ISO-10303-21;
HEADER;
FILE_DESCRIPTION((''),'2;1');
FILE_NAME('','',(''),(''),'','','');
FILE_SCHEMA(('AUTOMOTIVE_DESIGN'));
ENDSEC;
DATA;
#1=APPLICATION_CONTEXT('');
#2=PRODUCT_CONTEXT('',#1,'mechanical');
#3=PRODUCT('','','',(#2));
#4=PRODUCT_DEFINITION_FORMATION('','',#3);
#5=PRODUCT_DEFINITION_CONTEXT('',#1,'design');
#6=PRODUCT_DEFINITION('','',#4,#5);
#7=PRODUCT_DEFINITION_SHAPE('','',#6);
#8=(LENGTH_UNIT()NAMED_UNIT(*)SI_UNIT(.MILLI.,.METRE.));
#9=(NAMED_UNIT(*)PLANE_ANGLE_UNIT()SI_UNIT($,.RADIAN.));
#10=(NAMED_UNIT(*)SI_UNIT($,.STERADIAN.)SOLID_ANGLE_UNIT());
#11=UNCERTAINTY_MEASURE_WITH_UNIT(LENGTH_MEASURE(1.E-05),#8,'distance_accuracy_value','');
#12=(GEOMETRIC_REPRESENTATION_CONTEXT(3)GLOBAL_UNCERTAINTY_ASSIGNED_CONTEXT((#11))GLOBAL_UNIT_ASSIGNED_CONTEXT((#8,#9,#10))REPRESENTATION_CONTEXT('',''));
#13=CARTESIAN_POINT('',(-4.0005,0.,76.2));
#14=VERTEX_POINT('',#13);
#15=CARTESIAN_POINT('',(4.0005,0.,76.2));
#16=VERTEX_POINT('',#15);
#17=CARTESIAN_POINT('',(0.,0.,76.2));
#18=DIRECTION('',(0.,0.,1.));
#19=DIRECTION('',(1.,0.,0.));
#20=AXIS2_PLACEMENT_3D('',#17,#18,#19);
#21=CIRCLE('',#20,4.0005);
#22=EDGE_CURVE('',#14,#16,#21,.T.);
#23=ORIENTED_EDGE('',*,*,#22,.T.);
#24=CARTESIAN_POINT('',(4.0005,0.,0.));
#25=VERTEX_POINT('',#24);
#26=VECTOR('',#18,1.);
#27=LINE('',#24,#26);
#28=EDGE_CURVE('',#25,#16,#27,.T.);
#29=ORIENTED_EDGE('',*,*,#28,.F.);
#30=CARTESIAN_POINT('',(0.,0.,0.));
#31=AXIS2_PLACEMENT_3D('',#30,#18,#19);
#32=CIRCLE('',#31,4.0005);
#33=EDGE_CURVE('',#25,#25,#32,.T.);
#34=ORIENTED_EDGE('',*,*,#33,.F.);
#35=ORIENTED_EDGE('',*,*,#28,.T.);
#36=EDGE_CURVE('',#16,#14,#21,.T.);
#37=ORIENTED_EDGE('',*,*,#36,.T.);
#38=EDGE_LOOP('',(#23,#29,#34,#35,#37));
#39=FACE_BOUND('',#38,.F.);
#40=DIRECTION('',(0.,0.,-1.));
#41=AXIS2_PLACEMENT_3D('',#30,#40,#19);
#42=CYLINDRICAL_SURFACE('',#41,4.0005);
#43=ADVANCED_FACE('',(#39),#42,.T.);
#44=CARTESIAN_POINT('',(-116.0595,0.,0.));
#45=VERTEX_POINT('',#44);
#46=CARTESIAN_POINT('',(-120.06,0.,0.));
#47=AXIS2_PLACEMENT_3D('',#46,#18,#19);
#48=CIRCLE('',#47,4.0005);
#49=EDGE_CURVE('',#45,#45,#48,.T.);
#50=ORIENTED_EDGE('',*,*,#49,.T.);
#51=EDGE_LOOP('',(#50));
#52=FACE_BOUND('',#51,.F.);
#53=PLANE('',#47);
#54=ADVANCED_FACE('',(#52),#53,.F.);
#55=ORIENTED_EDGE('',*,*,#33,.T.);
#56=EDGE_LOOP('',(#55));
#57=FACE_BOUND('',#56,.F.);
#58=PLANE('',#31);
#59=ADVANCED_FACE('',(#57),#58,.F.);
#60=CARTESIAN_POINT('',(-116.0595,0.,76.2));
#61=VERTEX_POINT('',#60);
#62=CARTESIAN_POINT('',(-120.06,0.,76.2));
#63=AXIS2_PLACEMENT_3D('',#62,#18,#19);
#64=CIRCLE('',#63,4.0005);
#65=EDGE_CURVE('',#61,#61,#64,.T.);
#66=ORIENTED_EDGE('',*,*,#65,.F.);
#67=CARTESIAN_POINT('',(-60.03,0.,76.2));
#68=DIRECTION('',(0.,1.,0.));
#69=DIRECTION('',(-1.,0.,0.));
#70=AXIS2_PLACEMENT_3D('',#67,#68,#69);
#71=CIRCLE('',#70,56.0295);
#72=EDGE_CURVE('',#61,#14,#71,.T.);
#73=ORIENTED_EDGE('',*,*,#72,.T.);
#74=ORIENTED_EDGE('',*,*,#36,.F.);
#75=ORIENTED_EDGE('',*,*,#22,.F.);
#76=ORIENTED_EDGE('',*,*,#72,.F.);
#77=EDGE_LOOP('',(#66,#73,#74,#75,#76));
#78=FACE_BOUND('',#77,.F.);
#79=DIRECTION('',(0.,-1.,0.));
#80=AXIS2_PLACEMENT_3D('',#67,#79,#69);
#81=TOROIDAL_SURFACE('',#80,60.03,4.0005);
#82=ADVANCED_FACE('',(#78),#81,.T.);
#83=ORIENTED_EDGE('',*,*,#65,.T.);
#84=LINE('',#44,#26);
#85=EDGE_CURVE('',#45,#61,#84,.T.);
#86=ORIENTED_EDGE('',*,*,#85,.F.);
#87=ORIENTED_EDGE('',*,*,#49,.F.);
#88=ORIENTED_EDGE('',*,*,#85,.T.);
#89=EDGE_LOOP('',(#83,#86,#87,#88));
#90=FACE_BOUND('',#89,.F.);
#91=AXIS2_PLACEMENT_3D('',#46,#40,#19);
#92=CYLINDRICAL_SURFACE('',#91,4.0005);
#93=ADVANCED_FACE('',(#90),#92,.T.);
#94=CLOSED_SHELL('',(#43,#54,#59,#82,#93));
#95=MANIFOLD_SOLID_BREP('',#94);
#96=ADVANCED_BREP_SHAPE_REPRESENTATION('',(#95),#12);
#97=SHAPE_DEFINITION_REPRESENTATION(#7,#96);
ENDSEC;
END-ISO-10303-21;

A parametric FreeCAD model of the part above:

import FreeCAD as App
import Part
import Sketcher

V = App.Vector
Q = App.Units.Quantity

doc = App.newDocument("Part")
body = doc.addObject("PartDesign::Body", "Body")

sketch1 = doc.addObject("Sketcher::SketchObject", "Sketch")
body.addObject(sketch1)
sketch1.AttachmentSupport = (doc.XY_Plane, [""])
sketch1.MapMode = "FlatFace"
sketch1.addGeometry(Part.Circle(V(0, 0, 0), V(0, 0, 1), 4.0005), False)
sketch1.addConstraint([
    Sketcher.Constraint("Coincident", 0, 3, -1, 1),
    Sketcher.Constraint("Diameter", 0, Q("0.315 in")),
])
pad1 = doc.addObject("PartDesign::Pad", "Pad")
body.addObject(pad1)
pad1.Profile = sketch1
pad1.Length = Q("3 in")
body2 = doc.addObject("PartDesign::Body", "Body001")

sketch2 = doc.addObject("Sketcher::SketchObject", "Sketch001")
body2.addObject(sketch2)
sketch2.AttachmentSupport = (doc.getObject("XY_Plane001"), [""])
sketch2.MapMode = "FlatFace"
sketch2.addGeometry(Part.Circle(V(-120.06, 0, 0), V(0, 0, 1), 4.0005), False)
sketch2.addConstraint([
    Sketcher.Constraint("PointOnObject", 0, 3, -1),
    Sketcher.Constraint("Diameter", 0, Q("0.315 in")),
    Sketcher.Constraint("DistanceX", 0, 3, -1, 1, Q("120.06 mm")),
])
pad2 = doc.addObject("PartDesign::Pad", "Pad001")
body2.addObject(pad2)
pad2.Profile = sketch2
pad2.Length = Q("3 in")
body.AllowCompound = True
doc.recompute()

boolean = doc.addObject("PartDesign::Boolean", "Boolean")
body.addObject(boolean)
boolean.Type = "Fuse"
boolean.addObjects([body2])

sketch3 = doc.addObject("Sketcher::SketchObject", "Sketch002")
body.addObject(sketch3)
sketch3.AttachmentSupport = (doc.XY_Plane, [""])
sketch3.MapMode = "FlatFace"
sketch3.AttachmentOffset = App.Placement(V(0, 0, 3 * 25.4), App.Rotation())
sketch3.addGeometry(Part.Circle(V(-120.06, 0, 0), V(0, 0, 1), 4.0005), False)
sketch3.addGeometry(Part.LineSegment(V(-60.03, 0, 0), V(-60.03, 10, 0)), True)
sketch3.addConstraint([
    Sketcher.Constraint("Vertical", 1),
    Sketcher.Constraint("PointOnObject", 0, 3, -1),
    Sketcher.Constraint("PointOnObject", 1, 1, -1),
    Sketcher.Constraint("Diameter", 0, Q("0.315 in")),
    Sketcher.Constraint("DistanceY", 1, 1, 1, 2, Q("10 mm")),
    Sketcher.Constraint("DistanceX", 0, 3, -1, 1, Q("120.06 mm")),
    Sketcher.Constraint("DistanceX", 1, 1, -1, 1, Q("60.03 mm")),
])
revolution = doc.addObject("PartDesign::Revolution", "Revolution")
body.addObject(revolution)
revolution.Profile = sketch3
revolution.ReferenceAxis = (sketch3, ["Axis0"])
revolution.Angle = 180

doc.recompute()
